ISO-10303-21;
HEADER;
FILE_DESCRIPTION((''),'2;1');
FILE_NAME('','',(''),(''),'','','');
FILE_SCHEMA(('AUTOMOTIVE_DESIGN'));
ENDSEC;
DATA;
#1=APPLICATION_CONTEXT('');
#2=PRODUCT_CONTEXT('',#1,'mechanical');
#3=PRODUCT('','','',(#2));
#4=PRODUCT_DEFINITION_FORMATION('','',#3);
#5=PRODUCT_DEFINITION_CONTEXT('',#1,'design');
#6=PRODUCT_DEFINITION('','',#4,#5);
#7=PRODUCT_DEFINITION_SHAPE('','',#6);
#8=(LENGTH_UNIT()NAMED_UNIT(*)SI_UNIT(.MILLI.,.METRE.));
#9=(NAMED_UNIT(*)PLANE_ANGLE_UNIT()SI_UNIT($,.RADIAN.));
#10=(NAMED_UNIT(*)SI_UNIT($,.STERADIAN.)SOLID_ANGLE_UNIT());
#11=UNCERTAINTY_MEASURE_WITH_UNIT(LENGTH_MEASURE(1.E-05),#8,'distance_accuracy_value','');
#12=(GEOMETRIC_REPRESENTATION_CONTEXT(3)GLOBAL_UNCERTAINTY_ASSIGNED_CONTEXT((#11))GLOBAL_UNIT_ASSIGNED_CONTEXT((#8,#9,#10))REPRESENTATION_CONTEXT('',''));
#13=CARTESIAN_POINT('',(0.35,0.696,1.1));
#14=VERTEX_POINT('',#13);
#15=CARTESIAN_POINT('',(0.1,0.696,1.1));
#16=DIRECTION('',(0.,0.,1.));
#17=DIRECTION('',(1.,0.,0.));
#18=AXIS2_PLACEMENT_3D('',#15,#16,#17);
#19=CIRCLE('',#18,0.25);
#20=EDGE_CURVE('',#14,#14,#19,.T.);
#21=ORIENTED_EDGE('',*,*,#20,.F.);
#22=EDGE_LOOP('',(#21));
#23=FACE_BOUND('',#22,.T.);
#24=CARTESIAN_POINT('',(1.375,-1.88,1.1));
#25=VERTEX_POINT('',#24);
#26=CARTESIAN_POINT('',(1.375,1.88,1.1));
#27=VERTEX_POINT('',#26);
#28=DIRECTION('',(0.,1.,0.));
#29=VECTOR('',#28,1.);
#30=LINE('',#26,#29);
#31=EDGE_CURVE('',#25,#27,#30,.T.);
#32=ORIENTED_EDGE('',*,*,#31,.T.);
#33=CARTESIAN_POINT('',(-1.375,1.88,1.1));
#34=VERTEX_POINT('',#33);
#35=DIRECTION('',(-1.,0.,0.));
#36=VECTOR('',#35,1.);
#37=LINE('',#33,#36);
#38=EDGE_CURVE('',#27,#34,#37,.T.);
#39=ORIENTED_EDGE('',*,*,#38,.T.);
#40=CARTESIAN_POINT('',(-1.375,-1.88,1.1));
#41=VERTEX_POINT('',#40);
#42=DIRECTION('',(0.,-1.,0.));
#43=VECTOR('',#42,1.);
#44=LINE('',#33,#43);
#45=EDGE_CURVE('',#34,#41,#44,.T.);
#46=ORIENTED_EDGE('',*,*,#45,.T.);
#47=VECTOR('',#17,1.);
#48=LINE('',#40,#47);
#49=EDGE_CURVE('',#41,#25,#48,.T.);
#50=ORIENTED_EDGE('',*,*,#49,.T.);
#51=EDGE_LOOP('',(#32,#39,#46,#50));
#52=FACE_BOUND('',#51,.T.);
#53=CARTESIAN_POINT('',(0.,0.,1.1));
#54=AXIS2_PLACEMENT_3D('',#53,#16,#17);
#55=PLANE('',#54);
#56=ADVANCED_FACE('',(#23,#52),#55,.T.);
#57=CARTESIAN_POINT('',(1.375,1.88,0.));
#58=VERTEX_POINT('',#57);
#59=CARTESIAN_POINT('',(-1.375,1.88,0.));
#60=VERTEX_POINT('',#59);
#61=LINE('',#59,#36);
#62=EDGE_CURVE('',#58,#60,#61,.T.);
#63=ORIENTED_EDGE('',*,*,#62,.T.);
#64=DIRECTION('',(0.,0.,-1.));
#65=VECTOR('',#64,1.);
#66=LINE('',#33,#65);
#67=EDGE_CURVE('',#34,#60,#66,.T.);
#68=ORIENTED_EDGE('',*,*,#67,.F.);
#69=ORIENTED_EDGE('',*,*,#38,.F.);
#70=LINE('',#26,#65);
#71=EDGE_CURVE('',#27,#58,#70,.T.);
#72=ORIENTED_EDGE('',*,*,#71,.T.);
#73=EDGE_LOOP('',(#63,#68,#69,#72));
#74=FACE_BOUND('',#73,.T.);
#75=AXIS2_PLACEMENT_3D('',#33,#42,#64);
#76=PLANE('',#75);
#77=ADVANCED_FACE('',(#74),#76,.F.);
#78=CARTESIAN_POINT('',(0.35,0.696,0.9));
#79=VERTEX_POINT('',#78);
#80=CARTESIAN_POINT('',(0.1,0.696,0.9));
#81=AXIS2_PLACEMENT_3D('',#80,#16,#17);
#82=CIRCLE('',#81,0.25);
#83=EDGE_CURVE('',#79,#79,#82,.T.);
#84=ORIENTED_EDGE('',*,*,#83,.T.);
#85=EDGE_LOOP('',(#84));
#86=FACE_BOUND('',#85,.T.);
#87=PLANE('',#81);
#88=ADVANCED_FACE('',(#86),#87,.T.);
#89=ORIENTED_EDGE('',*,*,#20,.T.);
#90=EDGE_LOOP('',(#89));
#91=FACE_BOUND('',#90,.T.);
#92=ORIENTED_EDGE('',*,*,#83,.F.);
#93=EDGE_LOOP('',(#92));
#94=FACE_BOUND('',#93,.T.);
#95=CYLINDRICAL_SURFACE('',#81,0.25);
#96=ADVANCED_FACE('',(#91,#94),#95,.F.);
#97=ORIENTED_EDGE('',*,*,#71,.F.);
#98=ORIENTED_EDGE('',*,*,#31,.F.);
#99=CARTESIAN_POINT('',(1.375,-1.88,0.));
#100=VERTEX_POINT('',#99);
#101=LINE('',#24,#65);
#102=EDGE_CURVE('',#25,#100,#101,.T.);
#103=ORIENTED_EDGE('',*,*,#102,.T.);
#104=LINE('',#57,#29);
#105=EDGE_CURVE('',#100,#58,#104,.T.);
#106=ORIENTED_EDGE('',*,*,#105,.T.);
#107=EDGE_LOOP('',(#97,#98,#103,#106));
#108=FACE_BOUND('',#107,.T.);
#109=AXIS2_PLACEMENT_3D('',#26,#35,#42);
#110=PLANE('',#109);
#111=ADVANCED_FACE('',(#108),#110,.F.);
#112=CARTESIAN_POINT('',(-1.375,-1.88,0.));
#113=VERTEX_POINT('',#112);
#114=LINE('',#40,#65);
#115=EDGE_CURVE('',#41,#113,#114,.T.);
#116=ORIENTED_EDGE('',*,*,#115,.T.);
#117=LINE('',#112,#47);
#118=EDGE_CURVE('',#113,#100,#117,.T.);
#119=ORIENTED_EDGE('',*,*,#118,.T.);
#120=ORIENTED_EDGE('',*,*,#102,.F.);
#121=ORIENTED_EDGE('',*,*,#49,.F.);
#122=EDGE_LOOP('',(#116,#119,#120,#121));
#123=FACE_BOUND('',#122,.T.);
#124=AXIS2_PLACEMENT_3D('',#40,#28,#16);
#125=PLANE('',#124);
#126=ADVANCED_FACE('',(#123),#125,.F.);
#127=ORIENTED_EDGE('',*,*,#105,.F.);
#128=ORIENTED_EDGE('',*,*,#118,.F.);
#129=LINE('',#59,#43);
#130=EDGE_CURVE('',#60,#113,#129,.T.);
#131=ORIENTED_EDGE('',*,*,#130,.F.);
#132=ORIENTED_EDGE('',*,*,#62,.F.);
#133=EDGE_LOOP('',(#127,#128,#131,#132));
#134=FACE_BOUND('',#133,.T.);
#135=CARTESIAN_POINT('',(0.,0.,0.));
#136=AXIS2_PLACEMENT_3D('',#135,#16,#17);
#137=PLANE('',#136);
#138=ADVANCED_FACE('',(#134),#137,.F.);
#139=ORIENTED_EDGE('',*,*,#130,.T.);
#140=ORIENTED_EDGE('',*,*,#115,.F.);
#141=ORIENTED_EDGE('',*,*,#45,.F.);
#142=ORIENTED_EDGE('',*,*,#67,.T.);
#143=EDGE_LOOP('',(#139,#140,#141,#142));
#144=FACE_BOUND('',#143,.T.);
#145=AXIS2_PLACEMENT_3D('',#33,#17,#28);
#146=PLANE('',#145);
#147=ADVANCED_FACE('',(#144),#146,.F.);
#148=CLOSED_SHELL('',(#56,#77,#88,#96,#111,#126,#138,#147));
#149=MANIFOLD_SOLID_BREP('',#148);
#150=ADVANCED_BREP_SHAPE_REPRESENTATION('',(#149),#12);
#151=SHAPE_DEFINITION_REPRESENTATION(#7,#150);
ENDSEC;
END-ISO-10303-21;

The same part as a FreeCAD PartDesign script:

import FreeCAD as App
import Part
import Sketcher
from FreeCAD import Vector
Q = App.Units.Quantity

doc = App.newDocument("Part")
body = doc.addObject("PartDesign::Body", "Body")

# Sketch on XY plane
sketch1 = doc.addObject("Sketcher::SketchObject", "Sketch")
body.addObject(sketch1)
sketch1.AttachmentSupport = (doc.XY_Plane, [""])
sketch1.MapMode = "FlatFace"
sketch1.addGeometry(Part.LineSegment(Vector(-1.4, 1.9, 0), Vector(-1.4, -1.9, 0)), False)
sketch1.addGeometry(Part.LineSegment(Vector(-1.4, -1.9, 0), Vector(1.4, -1.9, 0)), False)
sketch1.addGeometry(Part.LineSegment(Vector(1.4, -1.9, 0), Vector(1.4, 1.9, 0)), False)
sketch1.addGeometry(Part.LineSegment(Vector(1.4, 1.9, 0), Vector(-1.4, 1.9, 0)), False)
sketch1.addConstraint(Sketcher.Constraint("Coincident", 0, 2, 1, 1))
sketch1.addConstraint(Sketcher.Constraint("Coincident", 1, 2, 2, 1))
sketch1.addConstraint(Sketcher.Constraint("Coincident", 2, 2, 3, 1))
sketch1.addConstraint(Sketcher.Constraint("Coincident", 3, 2, 0, 1))
sketch1.addConstraint(Sketcher.Constraint("Vertical", 0))
sketch1.addConstraint(Sketcher.Constraint("Horizontal", 1))
sketch1.addConstraint(Sketcher.Constraint("Vertical", 2))
sketch1.addConstraint(Sketcher.Constraint("Horizontal", 3))
sketch1.addConstraint(Sketcher.Constraint("Symmetric", 0, 2, 2, 2, -1, 1))
sketch1.addConstraint(Sketcher.Constraint("DistanceX", 1, 1, 1, 2, Q("2.75 mm")))
sketch1.addConstraint(Sketcher.Constraint("DistanceY", 0, 2, 0, 1, Q("3.76 mm")))
pad1 = doc.addObject("PartDesign::Pad", "Pad")
body.addObject(pad1)
pad1.Profile = sketch1
pad1.Length = 1.1

# Sketch on XY plane
sketch2 = doc.addObject("Sketcher::SketchObject", "Sketch001")
body.addObject(sketch2)
sketch2.AttachmentSupport = (doc.XY_Plane, [""])
sketch2.MapMode = "FlatFace"
sketch2.AttachmentOffset = App.Placement(Vector(0, 0, 1.1), App.Rotation())
sketch2.addGeometry(Part.Circle(Vector(0.1, 0.7, 0), Vector(0, 0, 1), 0.25), False)
sketch2.addConstraint(Sketcher.Constraint("Diameter", 0, Q("0.5 mm")))
sketch2.addConstraint(Sketcher.Constraint("DistanceX", -1, 1, 0, 3, Q("0.1 mm")))
sketch2.addConstraint(Sketcher.Constraint("DistanceY", -1, 1, 0, 3, Q("0.696 mm")))
pocket1 = doc.addObject("PartDesign::Pocket", "Pocket")
body.addObject(pocket1)
pocket1.Profile = sketch2
pocket1.Length = 0.2

doc.recompute()
